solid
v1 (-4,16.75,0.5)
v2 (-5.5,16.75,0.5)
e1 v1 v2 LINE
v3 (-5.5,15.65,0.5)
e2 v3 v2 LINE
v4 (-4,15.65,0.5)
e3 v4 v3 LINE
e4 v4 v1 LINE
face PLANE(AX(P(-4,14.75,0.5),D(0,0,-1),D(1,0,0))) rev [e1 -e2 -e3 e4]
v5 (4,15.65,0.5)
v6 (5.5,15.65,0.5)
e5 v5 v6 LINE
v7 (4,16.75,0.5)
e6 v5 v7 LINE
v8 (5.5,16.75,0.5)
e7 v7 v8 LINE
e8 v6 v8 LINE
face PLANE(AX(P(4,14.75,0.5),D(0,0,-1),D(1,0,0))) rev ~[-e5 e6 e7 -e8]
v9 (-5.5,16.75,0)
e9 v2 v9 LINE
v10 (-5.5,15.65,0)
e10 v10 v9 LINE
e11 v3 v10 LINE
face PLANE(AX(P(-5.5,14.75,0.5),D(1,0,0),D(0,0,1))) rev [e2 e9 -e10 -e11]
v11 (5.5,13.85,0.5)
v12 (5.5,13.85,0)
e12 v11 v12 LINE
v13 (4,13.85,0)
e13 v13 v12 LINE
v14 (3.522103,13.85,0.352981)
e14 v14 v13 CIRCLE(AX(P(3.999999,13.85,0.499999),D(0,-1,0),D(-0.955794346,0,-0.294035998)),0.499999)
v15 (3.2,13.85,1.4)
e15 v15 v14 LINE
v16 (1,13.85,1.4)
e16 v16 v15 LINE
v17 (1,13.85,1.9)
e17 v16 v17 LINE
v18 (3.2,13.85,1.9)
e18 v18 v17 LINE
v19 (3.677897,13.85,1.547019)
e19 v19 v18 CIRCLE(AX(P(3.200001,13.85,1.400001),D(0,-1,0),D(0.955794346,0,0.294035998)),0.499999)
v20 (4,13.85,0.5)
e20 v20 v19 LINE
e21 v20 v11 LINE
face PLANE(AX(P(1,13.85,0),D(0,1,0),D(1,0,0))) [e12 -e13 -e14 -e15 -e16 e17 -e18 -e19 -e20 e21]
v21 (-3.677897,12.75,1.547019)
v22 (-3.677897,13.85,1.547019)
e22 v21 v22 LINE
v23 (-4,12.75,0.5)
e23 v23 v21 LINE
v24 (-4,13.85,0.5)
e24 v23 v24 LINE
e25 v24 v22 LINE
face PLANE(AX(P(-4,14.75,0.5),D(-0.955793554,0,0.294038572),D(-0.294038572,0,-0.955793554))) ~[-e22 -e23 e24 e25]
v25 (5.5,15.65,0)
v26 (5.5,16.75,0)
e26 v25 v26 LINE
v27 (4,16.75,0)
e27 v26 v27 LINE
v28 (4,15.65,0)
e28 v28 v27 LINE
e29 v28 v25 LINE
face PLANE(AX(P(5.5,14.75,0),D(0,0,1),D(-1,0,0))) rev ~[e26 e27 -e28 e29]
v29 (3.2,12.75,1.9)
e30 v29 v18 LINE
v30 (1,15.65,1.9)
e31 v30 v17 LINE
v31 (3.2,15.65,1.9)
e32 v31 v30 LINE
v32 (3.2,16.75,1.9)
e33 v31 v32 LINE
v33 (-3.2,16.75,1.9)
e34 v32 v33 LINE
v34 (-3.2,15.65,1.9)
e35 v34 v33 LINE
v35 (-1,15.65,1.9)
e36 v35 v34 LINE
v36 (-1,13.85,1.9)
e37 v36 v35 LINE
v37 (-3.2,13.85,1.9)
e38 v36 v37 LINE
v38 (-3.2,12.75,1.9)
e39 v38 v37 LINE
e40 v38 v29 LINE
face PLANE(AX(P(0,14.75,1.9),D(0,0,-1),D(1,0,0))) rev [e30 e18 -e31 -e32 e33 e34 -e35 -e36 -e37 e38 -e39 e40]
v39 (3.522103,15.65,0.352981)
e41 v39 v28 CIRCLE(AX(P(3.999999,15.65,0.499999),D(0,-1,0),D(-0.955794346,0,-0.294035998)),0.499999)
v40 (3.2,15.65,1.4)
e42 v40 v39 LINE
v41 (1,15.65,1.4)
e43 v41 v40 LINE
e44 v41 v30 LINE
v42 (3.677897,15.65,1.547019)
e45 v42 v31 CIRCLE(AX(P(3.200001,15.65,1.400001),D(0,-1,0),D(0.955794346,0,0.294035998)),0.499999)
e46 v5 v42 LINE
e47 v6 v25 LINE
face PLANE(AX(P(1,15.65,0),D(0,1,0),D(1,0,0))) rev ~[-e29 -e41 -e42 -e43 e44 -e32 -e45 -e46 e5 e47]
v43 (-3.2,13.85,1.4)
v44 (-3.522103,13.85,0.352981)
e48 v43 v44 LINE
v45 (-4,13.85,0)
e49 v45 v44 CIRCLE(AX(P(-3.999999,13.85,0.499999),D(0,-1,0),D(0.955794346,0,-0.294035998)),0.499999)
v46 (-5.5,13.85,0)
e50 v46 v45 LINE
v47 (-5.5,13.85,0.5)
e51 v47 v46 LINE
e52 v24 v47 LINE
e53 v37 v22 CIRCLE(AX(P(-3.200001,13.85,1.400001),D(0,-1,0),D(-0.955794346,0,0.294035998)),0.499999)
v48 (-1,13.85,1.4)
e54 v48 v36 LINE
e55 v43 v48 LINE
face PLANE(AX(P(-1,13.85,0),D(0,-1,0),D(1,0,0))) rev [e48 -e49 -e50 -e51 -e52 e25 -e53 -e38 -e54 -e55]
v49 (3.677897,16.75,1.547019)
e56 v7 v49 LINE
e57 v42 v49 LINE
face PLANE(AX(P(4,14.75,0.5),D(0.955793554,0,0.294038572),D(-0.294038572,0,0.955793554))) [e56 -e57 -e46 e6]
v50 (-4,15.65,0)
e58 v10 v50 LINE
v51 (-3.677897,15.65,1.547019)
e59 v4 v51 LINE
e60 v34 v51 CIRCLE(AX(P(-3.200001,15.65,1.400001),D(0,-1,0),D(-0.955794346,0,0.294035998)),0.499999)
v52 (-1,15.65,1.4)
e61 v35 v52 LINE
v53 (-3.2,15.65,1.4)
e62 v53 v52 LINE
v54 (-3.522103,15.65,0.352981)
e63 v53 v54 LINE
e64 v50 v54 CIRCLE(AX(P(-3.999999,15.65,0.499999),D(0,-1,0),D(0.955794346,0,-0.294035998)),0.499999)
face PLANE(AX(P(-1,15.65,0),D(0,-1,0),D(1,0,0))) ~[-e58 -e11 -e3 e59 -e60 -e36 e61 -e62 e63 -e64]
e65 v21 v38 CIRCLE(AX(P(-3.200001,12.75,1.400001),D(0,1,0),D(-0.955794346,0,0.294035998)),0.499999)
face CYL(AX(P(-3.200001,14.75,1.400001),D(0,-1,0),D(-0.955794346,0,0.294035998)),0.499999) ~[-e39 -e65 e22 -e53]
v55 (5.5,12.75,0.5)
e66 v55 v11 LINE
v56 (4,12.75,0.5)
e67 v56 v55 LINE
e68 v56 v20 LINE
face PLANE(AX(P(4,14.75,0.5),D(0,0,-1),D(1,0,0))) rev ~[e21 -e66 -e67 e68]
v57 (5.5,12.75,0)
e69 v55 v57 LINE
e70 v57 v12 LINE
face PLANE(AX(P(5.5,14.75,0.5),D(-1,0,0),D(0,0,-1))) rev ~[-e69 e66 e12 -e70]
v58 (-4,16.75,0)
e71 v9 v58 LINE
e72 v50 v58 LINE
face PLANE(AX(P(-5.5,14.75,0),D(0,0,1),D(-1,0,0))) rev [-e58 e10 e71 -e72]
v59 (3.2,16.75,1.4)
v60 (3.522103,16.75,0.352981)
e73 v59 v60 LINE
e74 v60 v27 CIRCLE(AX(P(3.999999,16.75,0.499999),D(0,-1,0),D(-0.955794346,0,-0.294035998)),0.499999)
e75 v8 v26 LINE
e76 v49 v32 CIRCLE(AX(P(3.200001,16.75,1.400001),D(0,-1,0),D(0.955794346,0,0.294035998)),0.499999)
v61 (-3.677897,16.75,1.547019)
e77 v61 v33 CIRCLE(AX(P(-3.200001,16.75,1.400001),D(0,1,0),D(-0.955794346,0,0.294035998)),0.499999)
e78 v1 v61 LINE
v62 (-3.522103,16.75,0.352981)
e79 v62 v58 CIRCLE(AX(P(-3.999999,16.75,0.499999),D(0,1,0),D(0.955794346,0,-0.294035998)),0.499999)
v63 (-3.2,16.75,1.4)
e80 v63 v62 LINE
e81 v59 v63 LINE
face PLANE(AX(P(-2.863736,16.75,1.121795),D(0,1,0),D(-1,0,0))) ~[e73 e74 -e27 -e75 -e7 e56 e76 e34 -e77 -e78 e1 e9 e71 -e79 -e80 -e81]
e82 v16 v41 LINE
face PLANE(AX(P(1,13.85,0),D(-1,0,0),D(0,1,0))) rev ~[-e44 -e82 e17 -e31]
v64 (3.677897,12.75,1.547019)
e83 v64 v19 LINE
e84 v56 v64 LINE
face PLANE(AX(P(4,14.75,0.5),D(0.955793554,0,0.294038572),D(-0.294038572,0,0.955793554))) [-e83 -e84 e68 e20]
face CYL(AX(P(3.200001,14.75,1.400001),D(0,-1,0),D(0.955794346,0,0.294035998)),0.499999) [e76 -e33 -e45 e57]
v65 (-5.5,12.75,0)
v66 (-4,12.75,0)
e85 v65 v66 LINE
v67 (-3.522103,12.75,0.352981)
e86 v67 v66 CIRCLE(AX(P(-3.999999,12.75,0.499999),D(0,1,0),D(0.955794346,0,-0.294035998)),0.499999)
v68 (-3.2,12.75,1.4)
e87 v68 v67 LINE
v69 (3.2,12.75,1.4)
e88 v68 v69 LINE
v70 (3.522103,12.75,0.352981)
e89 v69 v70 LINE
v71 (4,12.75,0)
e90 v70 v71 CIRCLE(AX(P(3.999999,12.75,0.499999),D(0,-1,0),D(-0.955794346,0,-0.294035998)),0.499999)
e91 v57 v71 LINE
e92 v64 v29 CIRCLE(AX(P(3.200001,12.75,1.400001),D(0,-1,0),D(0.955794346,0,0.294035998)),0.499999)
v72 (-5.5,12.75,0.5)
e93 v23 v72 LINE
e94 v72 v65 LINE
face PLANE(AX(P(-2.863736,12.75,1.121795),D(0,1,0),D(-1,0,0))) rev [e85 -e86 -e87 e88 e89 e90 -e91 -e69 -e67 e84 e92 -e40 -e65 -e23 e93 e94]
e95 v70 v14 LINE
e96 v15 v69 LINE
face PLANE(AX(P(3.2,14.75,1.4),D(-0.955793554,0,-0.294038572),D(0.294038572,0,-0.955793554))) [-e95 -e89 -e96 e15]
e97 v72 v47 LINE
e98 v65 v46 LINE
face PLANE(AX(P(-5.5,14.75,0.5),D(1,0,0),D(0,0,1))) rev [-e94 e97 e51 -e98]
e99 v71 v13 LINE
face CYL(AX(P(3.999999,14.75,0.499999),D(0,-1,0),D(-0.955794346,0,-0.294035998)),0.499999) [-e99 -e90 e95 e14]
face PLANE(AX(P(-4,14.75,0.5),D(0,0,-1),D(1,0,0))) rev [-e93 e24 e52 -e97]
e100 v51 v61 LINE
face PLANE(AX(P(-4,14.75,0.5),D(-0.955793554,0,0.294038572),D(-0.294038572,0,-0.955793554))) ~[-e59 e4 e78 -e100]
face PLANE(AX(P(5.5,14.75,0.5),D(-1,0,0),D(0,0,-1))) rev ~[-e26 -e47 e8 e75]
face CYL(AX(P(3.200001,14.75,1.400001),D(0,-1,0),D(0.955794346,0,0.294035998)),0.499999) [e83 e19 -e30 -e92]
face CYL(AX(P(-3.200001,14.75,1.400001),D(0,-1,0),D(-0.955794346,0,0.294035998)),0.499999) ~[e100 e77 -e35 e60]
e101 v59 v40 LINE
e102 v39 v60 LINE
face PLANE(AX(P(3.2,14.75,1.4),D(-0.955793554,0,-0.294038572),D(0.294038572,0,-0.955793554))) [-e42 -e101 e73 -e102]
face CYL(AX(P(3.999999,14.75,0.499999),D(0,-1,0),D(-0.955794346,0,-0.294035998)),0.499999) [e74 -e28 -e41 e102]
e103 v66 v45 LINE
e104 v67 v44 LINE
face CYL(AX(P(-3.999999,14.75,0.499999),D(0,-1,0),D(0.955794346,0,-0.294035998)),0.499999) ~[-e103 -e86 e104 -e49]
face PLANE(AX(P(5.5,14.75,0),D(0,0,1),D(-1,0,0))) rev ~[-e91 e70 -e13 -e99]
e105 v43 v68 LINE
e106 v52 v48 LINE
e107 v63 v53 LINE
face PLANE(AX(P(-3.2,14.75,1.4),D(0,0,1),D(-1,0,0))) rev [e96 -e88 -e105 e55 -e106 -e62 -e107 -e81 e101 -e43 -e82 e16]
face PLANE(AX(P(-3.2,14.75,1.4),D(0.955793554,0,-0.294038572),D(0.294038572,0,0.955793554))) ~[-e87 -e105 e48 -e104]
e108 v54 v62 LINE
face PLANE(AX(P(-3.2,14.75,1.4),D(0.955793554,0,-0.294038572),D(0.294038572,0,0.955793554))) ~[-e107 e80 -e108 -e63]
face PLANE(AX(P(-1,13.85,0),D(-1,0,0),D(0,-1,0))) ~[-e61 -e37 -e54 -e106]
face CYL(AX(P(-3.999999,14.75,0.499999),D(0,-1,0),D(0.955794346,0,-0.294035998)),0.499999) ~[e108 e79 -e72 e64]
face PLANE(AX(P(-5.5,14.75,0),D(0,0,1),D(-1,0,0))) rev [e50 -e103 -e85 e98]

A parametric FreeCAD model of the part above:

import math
import FreeCAD as App
import Part
import Sketcher
from FreeCAD import Vector


def add_polygon(sketch, points):
    """Adds a closed chain of lines whose ends are joined by coincident constraints."""
    first, n = sketch.GeometryCount, len(points)
    for a, b in zip(points, points[1:] + points[:1]):
        sketch.addGeometry(Part.LineSegment(App.Vector(*a, 0), App.Vector(*b, 0)), False)
    for i in range(n):
        sketch.addConstraint(Sketcher.Constraint("Coincident", first + i, 2, first + (i + 1) % n, 1))

doc = App.newDocument("Part")
body = doc.addObject("PartDesign::Body", "Body")

sketch1 = body.newObject("Sketcher::SketchObject", "Sketch")
sketch1.AttachmentSupport = (doc.getObject("XZ_Plane"), [""])
sketch1.MapMode = "FlatFace"
sketch1.addGeometry([
    Part.LineSegment(Vector(3.2, 1.9, 0), Vector(0, 1.9, 0)),
    Part.LineSegment(Vector(0, 1.9, 0), Vector(0, 1.4, 0)),
    Part.LineSegment(Vector(0, 1.4, 0), Vector(3.2, 1.4, 0)),
    Part.LineSegment(Vector(3.2, 1.4, 0), Vector(3.52, 0.35, 0)),
    Part.ArcOfCircle(Part.Circle(Vector(4, 0.5, 0), Vector(0, 0, 1), 0.5), math.radians(-163), math.radians(-90)),
    Part.LineSegment(Vector(4, 0, 0), Vector(5.5, 0, 0)),
    Part.LineSegment(Vector(5.5, 0, 0), Vector(5.5, 0.5, 0)),
    Part.LineSegment(Vector(5.5, 0.5, 0), Vector(4, 0.5, 0)),
    Part.LineSegment(Vector(4, 0.5, 0), Vector(3.68, 1.55, 0)),
    Part.ArcOfCircle(Part.Circle(Vector(3.2, 1.4, 0), Vector(0, 0, 1), 0.5), math.radians(17), math.radians(90)),
], False)
sketch1.addConstraint([
    Sketcher.Constraint("Coincident", 0, 2, 1, 1),
    Sketcher.Constraint("Coincident", 1, 2, 2, 1),
    Sketcher.Constraint("Coincident", 2, 2, 3, 1),
    Sketcher.Constraint("Coincident", 3, 2, 4, 1),
    Sketcher.Constraint("Coincident", 4, 2, 5, 1),
    Sketcher.Constraint("Coincident", 5, 2, 6, 1),
    Sketcher.Constraint("Coincident", 6, 2, 7, 1),
    Sketcher.Constraint("Coincident", 7, 2, 8, 1),
    Sketcher.Constraint("Coincident", 8, 2, 9, 1),
    Sketcher.Constraint("Coincident", 9, 2, 0, 1),
    Sketcher.Constraint("Horizontal", 0),
    Sketcher.Constraint("Vertical", 1),
    Sketcher.Constraint("Horizontal", 2),
    Sketcher.Constraint("Horizontal", 5),
    Sketcher.Constraint("Vertical", 6),
    Sketcher.Constraint("Horizontal", 7),
    Sketcher.Constraint("Coincident", 2, 2, 9, 3),
    Sketcher.Constraint("Coincident", 7, 2, 4, 3),
    Sketcher.Constraint("Equal", 4, 9),
    Sketcher.Constraint("PointOnObject", 0, 2, -2),
    Sketcher.Constraint("PointOnObject", 4, 2, -1),
    Sketcher.Constraint("Vertical", 4, 2, 7, 2),
    Sketcher.Constraint("Vertical", 2, 2, 9, 2),
    Sketcher.Constraint("Equal", 3, 8),
    Sketcher.Constraint("Radius", 4, 0.499999),
    Sketcher.Constraint("DistanceX", 0, 2, 0, 1, 3.2),
    Sketcher.Constraint("DistanceX", 5, 1, 5, 2, 1.5),
    Sketcher.Constraint("DistanceX", -1, 1, 4, 3, 3.999999),
    Sketcher.Constraint("DistanceY", -1, 1, 9, 3, 1.400001),
    Sketcher.Constraint("DistanceX", 9, 3, 3, 2, 0.322102),
])
pad1 = body.newObject("PartDesign::Pad", "Pad")
pad1.Profile = sketch1
pad1.Length = 4
pad1.Midplane = True
doc.recompute()

mirrored = body.newObject("PartDesign::Mirrored", "Mirrored")
mirrored.Originals = [pad1]
mirrored.MirrorPlane = (doc.getObject("YZ_Plane"), [""])
body.Tip = mirrored

sketch2 = body.newObject("Sketcher::SketchObject", "Sketch001")
sketch2.AttachmentSupport = (doc.getObject("XY_Plane"), [""])
sketch2.MapMode = "FlatFace"
add_polygon(sketch2, [(1, 0.9), (1, -0.9), (6, -0.9), (6, 0.9)])
sketch2.addConstraint([
    Sketcher.Constraint("Vertical", 0),
    Sketcher.Constraint("Horizontal", 1),
    Sketcher.Constraint("Vertical", 2),
    Sketcher.Constraint("Horizontal", 3),
    Sketcher.Constraint("DistanceX", 1, 1, 1, 2, 5.0),
    Sketcher.Constraint("DistanceY", 0, 2, 0, 1, 1.8),
    Sketcher.Constraint("DistanceX", -1, 1, 0, 2, 1.0),
    Sketcher.Constraint("DistanceY", 0, 2, -1, 1, 0.9),
])
pocket1 = body.newObject("PartDesign::Pocket", "Pocket")
pocket1.Profile = sketch2
pocket1.Type = "ThroughAll"
pocket1.Midplane = True
doc.recompute()

mirrored2 = body.newObject("PartDesign::Mirrored", "Mirrored001")
mirrored2.Originals = [pocket1]
mirrored2.MirrorPlane = (doc.getObject("YZ_Plane"), [""])
body.Tip = mirrored2
body2 = doc.addObject("PartDesign::Body", "Body001")
doc.recompute()

body.Placement = App.Placement(Vector(0, 14.75, 0), App.Rotation(Vector(0, 0, 1), 0))
boolean = body2.newObject("PartDesign::Boolean", "Boolean")
boolean.Type = "Fuse"
boolean.addObjects([body])

doc.recompute()
